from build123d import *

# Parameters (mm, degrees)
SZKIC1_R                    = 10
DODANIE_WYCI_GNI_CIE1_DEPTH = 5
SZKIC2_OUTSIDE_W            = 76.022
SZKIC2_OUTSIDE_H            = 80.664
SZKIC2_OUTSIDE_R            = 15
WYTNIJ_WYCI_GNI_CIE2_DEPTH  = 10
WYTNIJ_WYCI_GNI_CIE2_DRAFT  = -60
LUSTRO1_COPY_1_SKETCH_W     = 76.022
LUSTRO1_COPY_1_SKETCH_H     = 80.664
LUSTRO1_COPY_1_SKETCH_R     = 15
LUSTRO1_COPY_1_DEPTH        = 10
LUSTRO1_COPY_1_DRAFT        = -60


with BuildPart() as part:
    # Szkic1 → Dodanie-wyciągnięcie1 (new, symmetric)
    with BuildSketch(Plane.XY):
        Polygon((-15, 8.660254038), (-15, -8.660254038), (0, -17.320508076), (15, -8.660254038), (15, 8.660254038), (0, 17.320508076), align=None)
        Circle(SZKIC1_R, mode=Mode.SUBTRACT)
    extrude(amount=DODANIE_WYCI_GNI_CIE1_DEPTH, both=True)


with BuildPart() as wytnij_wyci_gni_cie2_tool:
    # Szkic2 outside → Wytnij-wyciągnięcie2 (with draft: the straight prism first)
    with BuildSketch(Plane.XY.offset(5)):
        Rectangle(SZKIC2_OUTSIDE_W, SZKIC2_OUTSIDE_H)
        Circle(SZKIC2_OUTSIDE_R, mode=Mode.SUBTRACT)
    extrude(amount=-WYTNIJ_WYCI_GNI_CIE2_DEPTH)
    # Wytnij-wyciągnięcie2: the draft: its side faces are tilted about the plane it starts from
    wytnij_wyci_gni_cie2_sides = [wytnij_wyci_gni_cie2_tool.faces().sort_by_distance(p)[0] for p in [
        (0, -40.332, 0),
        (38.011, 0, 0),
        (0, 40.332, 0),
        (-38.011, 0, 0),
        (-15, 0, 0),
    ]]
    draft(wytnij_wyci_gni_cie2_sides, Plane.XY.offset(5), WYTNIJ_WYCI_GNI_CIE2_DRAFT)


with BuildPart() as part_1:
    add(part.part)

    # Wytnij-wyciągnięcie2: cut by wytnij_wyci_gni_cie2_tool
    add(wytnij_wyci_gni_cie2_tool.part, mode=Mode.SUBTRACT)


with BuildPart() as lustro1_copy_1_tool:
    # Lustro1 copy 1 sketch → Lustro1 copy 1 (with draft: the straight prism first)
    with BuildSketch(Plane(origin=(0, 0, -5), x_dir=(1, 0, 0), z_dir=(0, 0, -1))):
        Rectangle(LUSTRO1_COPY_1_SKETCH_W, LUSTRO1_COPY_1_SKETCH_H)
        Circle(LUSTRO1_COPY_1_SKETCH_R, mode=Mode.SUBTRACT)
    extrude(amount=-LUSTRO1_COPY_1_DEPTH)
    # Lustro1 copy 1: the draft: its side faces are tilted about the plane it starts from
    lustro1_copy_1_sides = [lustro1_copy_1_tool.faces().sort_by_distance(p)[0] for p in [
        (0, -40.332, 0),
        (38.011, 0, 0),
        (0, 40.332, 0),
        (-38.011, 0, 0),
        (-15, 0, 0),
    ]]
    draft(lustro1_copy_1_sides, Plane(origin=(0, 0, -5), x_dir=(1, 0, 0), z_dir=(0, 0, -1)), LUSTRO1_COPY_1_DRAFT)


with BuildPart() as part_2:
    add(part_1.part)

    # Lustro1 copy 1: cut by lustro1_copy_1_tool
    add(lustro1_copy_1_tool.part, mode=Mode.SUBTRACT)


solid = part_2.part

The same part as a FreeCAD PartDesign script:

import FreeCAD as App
import Part
import Sketcher
from FreeCAD import Vector
Q = App.Units.Quantity


def faces_at(feature, points):
    """Names of the faces that lie closest to the given points."""
    faces = feature.Shape.Faces
    near = lambda p: min(range(len(faces)), key=lambda i: faces[i].distToShape(Part.Vertex(*p))[0])
    return sorted({f"Face{near(p) + 1}" for p in points})

doc = App.newDocument("Part")
params = doc.addObject("Spreadsheet::Sheet", "Params")
for row, (alias, value) in enumerate([
    ("sketch1_diameter", "20 mm"),
    ("pad1_length", "10 mm"),
    ("sketch2_diameter", "30 mm"),
    ("pad2_length", "10 mm"),
    ("draft_angle", "60 deg"),
    ("sketch3_diameter", "30 mm"),
    ("pad3_length", "10 mm"),
    ("draft2_angle", "60 deg"),
], start=1):
    params.set(f"A{row}", alias)
    params.set(f"B{row}", "=" + value)
    params.setAlias(f"B{row}", alias)

body = doc.addObject("PartDesign::Body", "Body")

sketch1 = body.newObject("Sketcher::SketchObject", "Sketch")
sketch1.AttachmentSupport = (doc.getObject("XY_Plane"), [""])
sketch1.MapMode = "FlatFace"
sketch1.addGeometry([
    Part.LineSegment(Vector(-15, 9, 0), Vector(-15, -9, 0)),
    Part.LineSegment(Vector(-15, -9, 0), Vector(0, -17, 0)),
    Part.LineSegment(Vector(0, -17, 0), Vector(15, -9, 0)),
    Part.LineSegment(Vector(15, -9, 0), Vector(15, 9, 0)),
    Part.LineSegment(Vector(15, 9, 0), Vector(0, 17, 0)),
    Part.LineSegment(Vector(0, 17, 0), Vector(-15, 9, 0)),
    Part.Circle(Vector(0, 0, 0), Vector(0, 0, 1), 10),
], False)
sketch1.addConstraint([
    Sketcher.Constraint("Coincident", 0, 2, 1, 1),
    Sketcher.Constraint("Coincident", 1, 2, 2, 1),
    Sketcher.Constraint("Coincident", 2, 2, 3, 1),
    Sketcher.Constraint("Coincident", 3, 2, 4, 1),
    Sketcher.Constraint("Coincident", 4, 2, 5, 1),
    Sketcher.Constraint("Coincident", 5, 2, 0, 1),
    Sketcher.Constraint("Vertical", 0),
    Sketcher.Constraint("Vertical", 3),
    Sketcher.Constraint("Coincident", 6, 3, -1, 1),
    Sketcher.Constraint("Symmetric", 0, 2, 3, 2, -1, 1),
    Sketcher.Constraint("Symmetric", 1, 2, 4, 2, -1, 1),
    Sketcher.Constraint("PointOnObject", 1, 2, -2),
    Sketcher.Constraint("Parallel", 2, 5),
    Sketcher.Constraint("Horizontal", 0, 2, 2, 2),
    Sketcher.Constraint("Diameter", 6, Q("20 mm")),
    Sketcher.Constraint("Angle", 1, Q("-30 deg")),
    Sketcher.Constraint("DistanceX", 0, 2, -1, 1, Q("15 mm")),
    Sketcher.Constraint("DistanceY", 0, 2, 0, 1, Q("17.320508 mm")),
])
sketch1.setExpression("Constraints[14]", "Params.sketch1_diameter")
pad1 = body.newObject("PartDesign::Pad", "Pad")
pad1.Profile = sketch1
pad1.setExpression("Length", "Params.pad1_length")
pad1.Midplane = True
body2 = doc.addObject("PartDesign::Body", "Body001")

sketch2 = body2.newObject("Sketcher::SketchObject", "Sketch001")
sketch2.AttachmentSupport = (doc.getObject("XY_Plane001"), [""])
sketch2.MapMode = "FlatFace"
sketch2.AttachmentOffset = App.Placement(Vector(0, 0, 5), App.Rotation())
sketch2.addGeometry([
    Part.LineSegment(Vector(-38, 40, 0), Vector(-38, -40, 0)),
    Part.LineSegment(Vector(-38, -40, 0), Vector(38, -40, 0)),
    Part.LineSegment(Vector(38, -40, 0), Vector(38, 40, 0)),
    Part.LineSegment(Vector(38, 40, 0), Vector(-38, 40, 0)),
    Part.Circle(Vector(0, 0, 0), Vector(0, 0, 1), 15),
], False)
sketch2.addConstraint([
    Sketcher.Constraint("Coincident", 0, 2, 1, 1),
    Sketcher.Constraint("Coincident", 1, 2, 2, 1),
    Sketcher.Constraint("Coincident", 2, 2, 3, 1),
    Sketcher.Constraint("Coincident", 3, 2, 0, 1),
    Sketcher.Constraint("Vertical", 0),
    Sketcher.Constraint("Horizontal", 1),
    Sketcher.Constraint("Vertical", 2),
    Sketcher.Constraint("Horizontal", 3),
    Sketcher.Constraint("Coincident", 4, 3, -1, 1),
    Sketcher.Constraint("Symmetric", 0, 2, 2, 2, -1, 1),
    Sketcher.Constraint("Diameter", 4, Q("30 mm")),
    Sketcher.Constraint("DistanceX", 1, 1, 1, 2, Q("76.022 mm")),
    Sketcher.Constraint("DistanceY", 0, 2, 0, 1, Q("80.664 mm")),
])
sketch2.setExpression("Constraints[10]", "Params.sketch2_diameter")
pad2 = body2.newObject("PartDesign::Pad", "Pad001")
pad2.Profile = sketch2
pad2.setExpression("Length", "Params.pad2_length")
pad2.Reversed = True
doc.recompute()

datumplane = body2.newObject("PartDesign::Plane", "DatumPlane")
datumplane.AttachmentSupport = (doc.getObject("XY_Plane001"), [""])
datumplane.MapMode = "FlatFace"
datumplane.AttachmentOffset = App.Placement(Vector(0, 0, 5), App.Rotation())
draft = body2.newObject("PartDesign::Draft", "Draft")
draft.Base = (pad2, faces_at(pad2, [
    (0, -40.332, 0),
    (38.011, 0, 0),
    (0, 40.332, 0),
    (-38.011, 0, 0),
    (-15, 0, 0),
]))
draft.NeutralPlane = (datumplane, [""])
draft.setExpression("Angle", "Params.draft_angle")
draft.Reversed = True
doc.recompute()

boolean = body.newObject("PartDesign::Boolean", "Boolean")
boolean.Type = "Cut"
boolean.addObjects([body2])
body3 = doc.addObject("PartDesign::Body", "Body002")

sketch3 = body3.newObject("Sketcher::SketchObject", "Sketch002")
sketch3.AttachmentSupport = (doc.getObject("XY_Plane002"), [""])
sketch3.MapMode = "FlatFace"
sketch3.AttachmentOffset = App.Placement(Vector(0, 0, -5), App.Rotation())
sketch3.addGeometry([
    Part.LineSegment(Vector(-38, -40, 0), Vector(-38, 40, 0)),
    Part.LineSegment(Vector(-38, 40, 0), Vector(38, 40, 0)),
    Part.LineSegment(Vector(38, 40, 0), Vector(38, -40, 0)),
    Part.LineSegment(Vector(38, -40, 0), Vector(-38, -40, 0)),
    Part.Circle(Vector(0, 0, 0), Vector(0, 0, 1), 15),
], False)
sketch3.addConstraint([
    Sketcher.Constraint("Coincident", 0, 2, 1, 1),
    Sketcher.Constraint("Coincident", 1, 2, 2, 1),
    Sketcher.Constraint("Coincident", 2, 2, 3, 1),
    Sketcher.Constraint("Coincident", 3, 2, 0, 1),
    Sketcher.Constraint("Vertical", 0),
    Sketcher.Constraint("Horizontal", 1),
    Sketcher.Constraint("Vertical", 2),
    Sketcher.Constraint("Horizontal", 3),
    Sketcher.Constraint("Coincident", 4, 3, -1, 1),
    Sketcher.Constraint("Symmetric", 0, 2, 2, 2, -1, 1),
    Sketcher.Constraint("Diameter", 4, Q("30 mm")),
    Sketcher.Constraint("DistanceX", 1, 1, 1, 2, Q("76.022 mm")),
    Sketcher.Constraint("DistanceY", 0, 1, 0, 2, Q("80.664 mm")),
])
sketch3.setExpression("Constraints[10]", "Params.sketch3_diameter")
pad3 = body3.newObject("PartDesign::Pad", "Pad002")
pad3.Profile = sketch3
pad3.setExpression("Length", "Params.pad3_length")
doc.recompute()

datumplane2 = body3.newObject("PartDesign::Plane", "DatumPlane001")
datumplane2.AttachmentSupport = (doc.getObject("XY_Plane002"), [""])
datumplane2.MapMode = "FlatFace"
datumplane2.AttachmentOffset = App.Placement(Vector(0, 0, -5), App.Rotation())
draft2 = body3.newObject("PartDesign::Draft", "Draft001")
draft2.Base = (pad3, faces_at(pad3, [
    (0, -40.332, 0),
    (38.011, 0, 0),
    (0, 40.332, 0),
    (-38.011, 0, 0),
    (-15, 0, 0),
]))
draft2.NeutralPlane = (datumplane2, [""])
draft2.setExpression("Angle", "Params.draft2_angle")
draft2.Reversed = False
doc.recompute()

boolean2 = body.newObject("PartDesign::Boolean", "Boolean001")
boolean2.Type = "Cut"
boolean2.addObjects([body3])

doc.recompute()
